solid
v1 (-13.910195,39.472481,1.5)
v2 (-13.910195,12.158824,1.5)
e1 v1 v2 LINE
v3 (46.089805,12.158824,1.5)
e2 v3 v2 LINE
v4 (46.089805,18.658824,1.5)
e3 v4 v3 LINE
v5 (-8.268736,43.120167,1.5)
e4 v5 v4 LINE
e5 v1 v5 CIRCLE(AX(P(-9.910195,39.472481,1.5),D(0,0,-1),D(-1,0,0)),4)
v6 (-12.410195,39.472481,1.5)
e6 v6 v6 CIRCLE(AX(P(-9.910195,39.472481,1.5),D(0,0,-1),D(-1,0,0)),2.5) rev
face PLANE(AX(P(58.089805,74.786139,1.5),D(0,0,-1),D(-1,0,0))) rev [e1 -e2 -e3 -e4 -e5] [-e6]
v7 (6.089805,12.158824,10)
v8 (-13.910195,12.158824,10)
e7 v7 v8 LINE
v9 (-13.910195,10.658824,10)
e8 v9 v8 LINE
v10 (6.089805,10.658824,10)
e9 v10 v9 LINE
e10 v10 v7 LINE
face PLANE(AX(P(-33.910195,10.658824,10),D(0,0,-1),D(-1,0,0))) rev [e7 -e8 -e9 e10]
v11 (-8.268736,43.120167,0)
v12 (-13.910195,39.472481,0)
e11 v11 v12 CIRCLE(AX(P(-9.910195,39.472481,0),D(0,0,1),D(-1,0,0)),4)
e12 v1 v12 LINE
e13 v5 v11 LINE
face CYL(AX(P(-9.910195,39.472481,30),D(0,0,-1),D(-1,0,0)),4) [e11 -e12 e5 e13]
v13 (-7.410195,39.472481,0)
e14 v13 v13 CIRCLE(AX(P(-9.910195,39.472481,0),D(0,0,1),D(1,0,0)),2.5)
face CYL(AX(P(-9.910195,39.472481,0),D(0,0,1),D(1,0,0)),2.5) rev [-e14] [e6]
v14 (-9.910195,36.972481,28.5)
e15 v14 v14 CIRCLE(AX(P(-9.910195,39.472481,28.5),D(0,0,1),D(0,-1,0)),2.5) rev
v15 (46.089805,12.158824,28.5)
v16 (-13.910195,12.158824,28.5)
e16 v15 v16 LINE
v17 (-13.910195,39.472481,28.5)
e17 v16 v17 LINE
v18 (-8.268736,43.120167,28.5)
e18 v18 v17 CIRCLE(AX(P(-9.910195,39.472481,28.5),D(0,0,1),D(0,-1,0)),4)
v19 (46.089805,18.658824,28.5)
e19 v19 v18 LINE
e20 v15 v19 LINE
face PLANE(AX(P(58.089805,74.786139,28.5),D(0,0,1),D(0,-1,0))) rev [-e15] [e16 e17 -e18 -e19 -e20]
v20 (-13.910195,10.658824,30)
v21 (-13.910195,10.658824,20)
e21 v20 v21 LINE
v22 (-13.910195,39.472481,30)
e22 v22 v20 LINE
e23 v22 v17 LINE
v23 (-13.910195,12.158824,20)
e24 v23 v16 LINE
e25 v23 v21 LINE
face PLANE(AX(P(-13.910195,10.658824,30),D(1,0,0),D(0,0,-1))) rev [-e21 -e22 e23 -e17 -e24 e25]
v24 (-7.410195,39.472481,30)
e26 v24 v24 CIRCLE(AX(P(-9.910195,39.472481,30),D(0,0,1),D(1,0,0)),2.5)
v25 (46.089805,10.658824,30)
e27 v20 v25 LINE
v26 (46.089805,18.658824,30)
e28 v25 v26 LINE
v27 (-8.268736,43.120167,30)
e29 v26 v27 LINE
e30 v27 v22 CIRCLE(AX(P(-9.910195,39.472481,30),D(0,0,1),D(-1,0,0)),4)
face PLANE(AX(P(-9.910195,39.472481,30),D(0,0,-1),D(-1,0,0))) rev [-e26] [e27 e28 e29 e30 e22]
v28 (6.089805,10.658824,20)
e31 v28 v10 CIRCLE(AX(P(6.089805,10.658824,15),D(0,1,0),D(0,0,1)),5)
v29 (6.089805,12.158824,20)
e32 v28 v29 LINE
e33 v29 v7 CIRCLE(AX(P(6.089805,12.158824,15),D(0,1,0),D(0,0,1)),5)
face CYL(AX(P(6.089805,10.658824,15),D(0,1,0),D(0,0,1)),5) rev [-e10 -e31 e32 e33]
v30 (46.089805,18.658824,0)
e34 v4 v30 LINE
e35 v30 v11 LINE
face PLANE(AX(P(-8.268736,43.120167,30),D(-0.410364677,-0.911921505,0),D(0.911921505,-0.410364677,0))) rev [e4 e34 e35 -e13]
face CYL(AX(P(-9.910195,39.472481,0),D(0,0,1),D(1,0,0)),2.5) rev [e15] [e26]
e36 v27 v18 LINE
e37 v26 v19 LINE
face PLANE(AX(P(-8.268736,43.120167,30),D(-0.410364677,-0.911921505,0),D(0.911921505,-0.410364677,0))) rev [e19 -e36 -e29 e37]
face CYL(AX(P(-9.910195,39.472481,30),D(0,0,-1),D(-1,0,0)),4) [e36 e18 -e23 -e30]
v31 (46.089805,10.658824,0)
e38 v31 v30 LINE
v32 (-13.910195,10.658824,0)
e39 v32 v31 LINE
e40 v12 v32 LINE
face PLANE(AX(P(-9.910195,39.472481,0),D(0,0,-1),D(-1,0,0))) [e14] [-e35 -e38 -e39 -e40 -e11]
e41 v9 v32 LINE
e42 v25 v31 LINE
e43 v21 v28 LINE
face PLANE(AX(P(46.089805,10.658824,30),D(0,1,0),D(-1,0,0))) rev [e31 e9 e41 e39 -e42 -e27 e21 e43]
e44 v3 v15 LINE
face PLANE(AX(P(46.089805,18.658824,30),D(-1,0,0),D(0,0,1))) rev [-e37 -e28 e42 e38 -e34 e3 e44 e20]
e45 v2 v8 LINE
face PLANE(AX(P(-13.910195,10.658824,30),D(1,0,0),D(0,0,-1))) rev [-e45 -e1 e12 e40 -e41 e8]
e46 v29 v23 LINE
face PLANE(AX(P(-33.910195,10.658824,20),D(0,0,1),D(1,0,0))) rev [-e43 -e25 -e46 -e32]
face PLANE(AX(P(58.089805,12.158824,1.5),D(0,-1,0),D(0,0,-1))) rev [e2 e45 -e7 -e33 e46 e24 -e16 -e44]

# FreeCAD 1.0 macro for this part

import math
import FreeCAD as App
import Part
import Sketcher
from FreeCAD import Vector
Q = App.Units.Quantity

doc = App.newDocument("Part")
body = doc.addObject("PartDesign::Body", "Body")

sketch1 = body.newObject("Sketcher::SketchObject", "Sketch")
sketch1.AttachmentSupport = (doc.getObject("XY_Plane"), [""])
sketch1.MapMode = "FlatFace"
sketch1.addGeometry([
    Part.LineSegment(Vector(-13.910195, 39.472481, 0), Vector(-13.910195, 10.658824, 0)),
    Part.LineSegment(Vector(-13.910195, 10.658824, 0), Vector(46.089805, 10.658824, 0)),
    Part.LineSegment(Vector(46.089805, 10.658824, 0), Vector(46.089805, 18.658824, 0)),
    Part.LineSegment(Vector(46.089805, 18.658824, 0), Vector(-8.268736, 43.120167, 0)),
    Part.ArcOfCircle(Part.Circle(Vector(-9.910195, 39.472481, 0), Vector(0, 0, 1), 4), math.radians(65.772255), math.radians(180)),
], False)
sketch1.addConstraint([
    Sketcher.Constraint("Coincident", 0, 2, 1, 1),
    Sketcher.Constraint("Coincident", 1, 2, 2, 1),
    Sketcher.Constraint("Coincident", 2, 2, 3, 1),
    Sketcher.Constraint("Tangent", 3, 2, 4, 1),
    Sketcher.Constraint("Tangent", 4, 2, 0, 1),
    Sketcher.Constraint("Vertical", 0),
    Sketcher.Constraint("Horizontal", 1),
    Sketcher.Constraint("Vertical", 2),
    Sketcher.Constraint("Radius", 4, Q("4 mm")),
    Sketcher.Constraint("DistanceX", 1, 1, 1, 2, Q("60 mm")),
    Sketcher.Constraint("DistanceY", 2, 1, 2, 2, Q("8 mm")),
    Sketcher.Constraint("DistanceY", 0, 2, 0, 1, Q("28.813658 mm")),
    Sketcher.Constraint("DistanceY", -1, 1, 4, 3, Q("39.472481 mm")),
    Sketcher.Constraint("DistanceX", 4, 3, -1, 1, Q("9.910195 mm")),
])
pad1 = body.newObject("PartDesign::Pad", "Pad")
pad1.Profile = sketch1
pad1.Length = 30

sketch2 = body.newObject("Sketcher::SketchObject", "Sketch001")
sketch2.AttachmentSupport = (doc.getObject("XY_Plane"), [""])
sketch2.MapMode = "FlatFace"
sketch2.AttachmentOffset = App.Placement(Vector(0, 0, 30), App.Rotation())
sketch2.addGeometry(Part.Circle(Vector(-9.910195, 39.472481, 0), Vector(0, 0, 1), 2.5), False)
sketch2.addConstraint([
    Sketcher.Constraint("Diameter", 0, Q("5 mm")),
    Sketcher.Constraint("DistanceY", -1, 1, 0, 3, Q("39.472481 mm")),
    Sketcher.Constraint("DistanceX", 0, 3, -1, 1, Q("9.910195 mm")),
])
pocket1 = body.newObject("PartDesign::Pocket", "Pocket")
pocket1.Profile = sketch2
pocket1.Type = "ThroughAll"

sketch3 = body.newObject("Sketcher::SketchObject", "Sketch002")
sketch3.AttachmentSupport = (doc.getObject("YZ_Plane"), [""])
sketch3.MapMode = "FlatFace"
sketch3.AttachmentOffset = App.Placement(Vector(0, 0, -13.910195), App.Rotation())
sketch3.addGeometry([
    Part.LineSegment(Vector(74.786139, 1.5, 0), Vector(12.158824, 1.5, 0)),
    Part.LineSegment(Vector(12.158824, 1.5, 0), Vector(12.158824, 28.5, 0)),
    Part.LineSegment(Vector(12.158824, 28.5, 0), Vector(74.786139, 28.5, 0)),
    Part.LineSegment(Vector(74.786139, 28.5, 0), Vector(74.786139, 1.5, 0)),
], False)
sketch3.addConstraint([
    Sketcher.Constraint("Coincident", 0, 2, 1, 1),
    Sketcher.Constraint("Coincident", 1, 2, 2, 1),
    Sketcher.Constraint("Coincident", 2, 2, 3, 1),
    Sketcher.Constraint("Coincident", 3, 2, 0, 1),
    Sketcher.Constraint("Horizontal", 0),
    Sketcher.Constraint("Vertical", 1),
    Sketcher.Constraint("Horizontal", 2),
    Sketcher.Constraint("Vertical", 3),
    Sketcher.Constraint("DistanceY", 1, 1, 1, 2, Q("27 mm")),
    Sketcher.Constraint("DistanceY", -1, 1, 0, 2, Q("1.5 mm")),
    Sketcher.Constraint("DistanceX", 0, 2, 0, 1, Q("62.627315 mm")),
    Sketcher.Constraint("DistanceX", -1, 1, 2, 2, Q("74.786139 mm")),
])
pocket2 = body.newObject("PartDesign::Pocket", "Pocket001")
pocket2.Profile = sketch3
pocket2.Length = 72
pocket2.Reversed = True

sketch4 = body.newObject("Sketcher::SketchObject", "Sketch003")
sketch4.AttachmentSupport = (doc.getObject("XZ_Plane"), [""])
sketch4.MapMode = "FlatFace"
sketch4.AttachmentOffset = App.Placement(Vector(0, 0, -12.158824), App.Rotation())
sketch4.addGeometry([
    Part.LineSegment(Vector(-33.910195, 20, 0), Vector(6.089805, 20, 0)),
    Part.ArcOfCircle(Part.Circle(Vector(6.089805, 15, 0), Vector(0, 0, 1), 5), math.radians(-90), math.radians(90)),
    Part.LineSegment(Vector(6.089805, 10, 0), Vector(-33.910195, 10, 0)),
    Part.LineSegment(Vector(-33.910195, 10, 0), Vector(-33.910195, 20, 0)),
], False)
sketch4.addConstraint([
    Sketcher.Constraint("Tangent", 0, 2, 1, 2),
    Sketcher.Constraint("Tangent", 1, 1, 2, 1),
    Sketcher.Constraint("Coincident", 2, 2, 3, 1),
    Sketcher.Constraint("Coincident", 3, 2, 0, 1),
    Sketcher.Constraint("Horizontal", 0),
    Sketcher.Constraint("Horizontal", 2),
    Sketcher.Constraint("Vertical", 3),
    Sketcher.Constraint("Radius", 1, Q("5 mm")),
    Sketcher.Constraint("DistanceX", 0, 1, 0, 2, Q("40 mm")),
    Sketcher.Constraint("DistanceY", -1, 1, 1, 3, Q("15 mm")),
    Sketcher.Constraint("DistanceX", -1, 1, 1, 3, Q("6.089805 mm")),
])
pocket3 = body.newObject("PartDesign::Pocket", "Pocket002")
pocket3.Profile = sketch4
pocket3.Type = "ThroughAll"
pocket3.Reversed = True

doc.recompute()
